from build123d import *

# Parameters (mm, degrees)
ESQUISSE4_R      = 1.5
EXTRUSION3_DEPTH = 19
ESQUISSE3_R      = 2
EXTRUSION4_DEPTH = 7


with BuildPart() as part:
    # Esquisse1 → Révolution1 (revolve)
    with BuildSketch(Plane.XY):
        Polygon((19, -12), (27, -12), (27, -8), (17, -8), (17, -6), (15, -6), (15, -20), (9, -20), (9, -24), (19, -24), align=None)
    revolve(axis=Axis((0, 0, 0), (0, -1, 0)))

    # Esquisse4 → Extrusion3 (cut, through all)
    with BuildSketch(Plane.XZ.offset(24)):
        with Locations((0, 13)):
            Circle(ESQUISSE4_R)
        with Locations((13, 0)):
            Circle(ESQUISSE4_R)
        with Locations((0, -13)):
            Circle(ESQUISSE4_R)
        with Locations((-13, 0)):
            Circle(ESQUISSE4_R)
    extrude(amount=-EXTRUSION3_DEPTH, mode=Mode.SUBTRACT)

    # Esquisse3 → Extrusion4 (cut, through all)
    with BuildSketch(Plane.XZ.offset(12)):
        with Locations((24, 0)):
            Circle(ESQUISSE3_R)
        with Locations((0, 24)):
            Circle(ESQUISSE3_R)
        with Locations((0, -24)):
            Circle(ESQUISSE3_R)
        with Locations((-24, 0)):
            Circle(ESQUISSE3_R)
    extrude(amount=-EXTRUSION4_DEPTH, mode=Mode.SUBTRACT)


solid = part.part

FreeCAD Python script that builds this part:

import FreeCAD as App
import Part
import Sketcher


def add_polygon(sketch, points):
    """Adds a closed chain of lines whose ends are joined by coincident constraints."""
    first, n = sketch.GeometryCount, len(points)
    for a, b in zip(points, points[1:] + points[:1]):
        sketch.addGeometry(Part.LineSegment(App.Vector(*a, 0), App.Vector(*b, 0)), False)
    for i in range(n):
        sketch.addConstraint(Sketcher.Constraint("Coincident", first + i, 2, first + (i + 1) % n, 1))

doc = App.newDocument("Part")
params = doc.addObject("Spreadsheet::Sheet", "Params")
for row, (alias, value) in enumerate([
    ("sketch1_width", "8 mm"),
    ("sketch1_width2", "10 mm"),
    ("sketch1_width3", "2 mm"),
    ("sketch1_height", "4 mm"),
    ("sketch1_height2", "14 mm"),
    ("revolution_angle", "360 deg"),
    ("sketch2_diameter", "3 mm"),
    ("sketch3_diameter", "4 mm"),
], start=1):
    params.set(f"A{row}", alias)
    params.set(f"B{row}", "=" + value)
    params.setAlias(f"B{row}", alias)

body = doc.addObject("PartDesign::Body", "Body")

sketch1 = doc.addObject("Sketcher::SketchObject", "Sketch")
body.addObject(sketch1)
sketch1.AttachmentSupport = (doc.XY_Plane, [""])
sketch1.MapMode = "FlatFace"
add_polygon(sketch1, [(19, -12), (27, -12), (27, -8), (17, -8), (17, -6), (15, -6), (15, -20), (9, -20), (9, -24), (19, -24)])
sketch1.addConstraint(Sketcher.Constraint("Horizontal", 0))
sketch1.addConstraint(Sketcher.Constraint("Vertical", 1))
sketch1.addConstraint(Sketcher.Constraint("Horizontal", 2))
sketch1.addConstraint(Sketcher.Constraint("Vertical", 3))
sketch1.addConstraint(Sketcher.Constraint("Horizontal", 4))
sketch1.addConstraint(Sketcher.Constraint("Vertical", 5))
sketch1.addConstraint(Sketcher.Constraint("Horizontal", 6))
sketch1.addConstraint(Sketcher.Constraint("Vertical", 7))
sketch1.addConstraint(Sketcher.Constraint("Horizontal", 8))
sketch1.addConstraint(Sketcher.Constraint("Vertical", 9))
sketch1.addConstraint(Sketcher.Constraint("Equal", 2, 8))
sketch1.addConstraint(Sketcher.Constraint("Equal", 4, 3))
sketch1.addConstraint(Sketcher.Constraint("Equal", 1, 7))
sketch1.addConstraint(Sketcher.Constraint("DistanceX", 0, 1, 0, 2, 8.0))
sketch1.addConstraint(Sketcher.Constraint("DistanceX", 2, 2, 2, 1, 10.0))
sketch1.addConstraint(Sketcher.Constraint("DistanceX", 4, 2, 4, 1, 2.0))
sketch1.addConstraint(Sketcher.Constraint("DistanceY", 1, 1, 1, 2, 4.0))
sketch1.addConstraint(Sketcher.Constraint("DistanceY", 5, 2, 5, 1, 14.0))
sketch1.addConstraint(Sketcher.Constraint("DistanceX", -1, 1, 0, 2, 27.0))
sketch1.addConstraint(Sketcher.Constraint("DistanceY", 0, 2, -1, 1, 12.0))
sketch1.setExpression("Constraints[23]", "Params.sketch1_width")
sketch1.setExpression("Constraints[24]", "Params.sketch1_width2")
sketch1.setExpression("Constraints[25]", "Params.sketch1_width3")
sketch1.setExpression("Constraints[26]", "Params.sketch1_height")
sketch1.setExpression("Constraints[27]", "Params.sketch1_height2")
revolution = doc.addObject("PartDesign::Revolution", "Revolution")
body.addObject(revolution)
revolution.Profile = sketch1
revolution.ReferenceAxis = (sketch1, ["V_Axis"])
revolution.setExpression("Angle", "Params.revolution_angle")

sketch2 = doc.addObject("Sketcher::SketchObject", "Sketch001")
body.addObject(sketch2)
sketch2.AttachmentSupport = (doc.XZ_Plane, [""])
sketch2.MapMode = "FlatFace"
sketch2.AttachmentOffset = App.Placement(App.Vector(0, 0, 24), App.Rotation())
sketch2.addGeometry(Part.Circle(App.Vector(0, 13, 0), App.Vector(0, 0, 1), 1.5), False)
sketch2.addGeometry(Part.Circle(App.Vector(13, 0, 0), App.Vector(0, 0, 1), 1.5), False)
sketch2.addGeometry(Part.Circle(App.Vector(0, -13, 0), App.Vector(0, 0, 1), 1.5), False)
sketch2.addGeometry(Part.Circle(App.Vector(-13, 0, 0), App.Vector(0, 0, 1), 1.5), False)
sketch2.addConstraint(Sketcher.Constraint("Equal", 0, 1))
sketch2.addConstraint(Sketcher.Constraint("Equal", 1, 2))
sketch2.addConstraint(Sketcher.Constraint("Equal", 2, 3))
sketch2.addConstraint(Sketcher.Constraint("Symmetric", 0, 3, 2, 3, -1, 1))
sketch2.addConstraint(Sketcher.Constraint("Symmetric", 1, 3, 3, 3, -1, 1))
sketch2.addConstraint(Sketcher.Constraint("PointOnObject", 0, 3, -2))
sketch2.addConstraint(Sketcher.Constraint("PointOnObject", 1, 3, -1))
sketch2.addConstraint(Sketcher.Constraint("Diameter", 0, 3.0))
sketch2.addConstraint(Sketcher.Constraint("DistanceY", -1, 1, 0, 3, 13.0))
sketch2.addConstraint(Sketcher.Constraint("DistanceX", -1, 1, 1, 3, 13.0))
sketch2.setExpression("Constraints[7]", "Params.sketch2_diameter")
pocket1 = doc.addObject("PartDesign::Pocket", "Pocket")
body.addObject(pocket1)
pocket1.Profile = sketch2
pocket1.Type = "ThroughAll"

sketch3 = doc.addObject("Sketcher::SketchObject", "Sketch002")
body.addObject(sketch3)
sketch3.AttachmentSupport = (doc.XZ_Plane, [""])
sketch3.MapMode = "FlatFace"
sketch3.AttachmentOffset = App.Placement(App.Vector(0, 0, 12), App.Rotation())
sketch3.addGeometry(Part.Circle(App.Vector(24, 0, 0), App.Vector(0, 0, 1), 2), False)
sketch3.addGeometry(Part.Circle(App.Vector(0, 24, 0), App.Vector(0, 0, 1), 2), False)
sketch3.addGeometry(Part.Circle(App.Vector(0, -24, 0), App.Vector(0, 0, 1), 2), False)
sketch3.addGeometry(Part.Circle(App.Vector(-24, 0, 0), App.Vector(0, 0, 1), 2), False)
sketch3.addConstraint(Sketcher.Constraint("Equal", 0, 1))
sketch3.addConstraint(Sketcher.Constraint("Equal", 1, 2))
sketch3.addConstraint(Sketcher.Constraint("Equal", 2, 3))
sketch3.addConstraint(Sketcher.Constraint("Symmetric", 1, 3, 2, 3, -1, 1))
sketch3.addConstraint(Sketcher.Constraint("Symmetric", 0, 3, 3, 3, -1, 1))
sketch3.addConstraint(Sketcher.Constraint("PointOnObject", 0, 3, -1))
sketch3.addConstraint(Sketcher.Constraint("PointOnObject", 1, 3, -2))
sketch3.addConstraint(Sketcher.Constraint("Diameter", 0, 4.0))
sketch3.addConstraint(Sketcher.Constraint("DistanceX", -1, 1, 0, 3, 24.0))
sketch3.addConstraint(Sketcher.Constraint("DistanceY", -1, 1, 1, 3, 24.0))
sketch3.setExpression("Constraints[7]", "Params.sketch3_diameter")
pocket2 = doc.addObject("PartDesign::Pocket", "Pocket001")
body.addObject(pocket2)
pocket2.Profile = sketch3
pocket2.Type = "ThroughAll"

doc.recompute()
